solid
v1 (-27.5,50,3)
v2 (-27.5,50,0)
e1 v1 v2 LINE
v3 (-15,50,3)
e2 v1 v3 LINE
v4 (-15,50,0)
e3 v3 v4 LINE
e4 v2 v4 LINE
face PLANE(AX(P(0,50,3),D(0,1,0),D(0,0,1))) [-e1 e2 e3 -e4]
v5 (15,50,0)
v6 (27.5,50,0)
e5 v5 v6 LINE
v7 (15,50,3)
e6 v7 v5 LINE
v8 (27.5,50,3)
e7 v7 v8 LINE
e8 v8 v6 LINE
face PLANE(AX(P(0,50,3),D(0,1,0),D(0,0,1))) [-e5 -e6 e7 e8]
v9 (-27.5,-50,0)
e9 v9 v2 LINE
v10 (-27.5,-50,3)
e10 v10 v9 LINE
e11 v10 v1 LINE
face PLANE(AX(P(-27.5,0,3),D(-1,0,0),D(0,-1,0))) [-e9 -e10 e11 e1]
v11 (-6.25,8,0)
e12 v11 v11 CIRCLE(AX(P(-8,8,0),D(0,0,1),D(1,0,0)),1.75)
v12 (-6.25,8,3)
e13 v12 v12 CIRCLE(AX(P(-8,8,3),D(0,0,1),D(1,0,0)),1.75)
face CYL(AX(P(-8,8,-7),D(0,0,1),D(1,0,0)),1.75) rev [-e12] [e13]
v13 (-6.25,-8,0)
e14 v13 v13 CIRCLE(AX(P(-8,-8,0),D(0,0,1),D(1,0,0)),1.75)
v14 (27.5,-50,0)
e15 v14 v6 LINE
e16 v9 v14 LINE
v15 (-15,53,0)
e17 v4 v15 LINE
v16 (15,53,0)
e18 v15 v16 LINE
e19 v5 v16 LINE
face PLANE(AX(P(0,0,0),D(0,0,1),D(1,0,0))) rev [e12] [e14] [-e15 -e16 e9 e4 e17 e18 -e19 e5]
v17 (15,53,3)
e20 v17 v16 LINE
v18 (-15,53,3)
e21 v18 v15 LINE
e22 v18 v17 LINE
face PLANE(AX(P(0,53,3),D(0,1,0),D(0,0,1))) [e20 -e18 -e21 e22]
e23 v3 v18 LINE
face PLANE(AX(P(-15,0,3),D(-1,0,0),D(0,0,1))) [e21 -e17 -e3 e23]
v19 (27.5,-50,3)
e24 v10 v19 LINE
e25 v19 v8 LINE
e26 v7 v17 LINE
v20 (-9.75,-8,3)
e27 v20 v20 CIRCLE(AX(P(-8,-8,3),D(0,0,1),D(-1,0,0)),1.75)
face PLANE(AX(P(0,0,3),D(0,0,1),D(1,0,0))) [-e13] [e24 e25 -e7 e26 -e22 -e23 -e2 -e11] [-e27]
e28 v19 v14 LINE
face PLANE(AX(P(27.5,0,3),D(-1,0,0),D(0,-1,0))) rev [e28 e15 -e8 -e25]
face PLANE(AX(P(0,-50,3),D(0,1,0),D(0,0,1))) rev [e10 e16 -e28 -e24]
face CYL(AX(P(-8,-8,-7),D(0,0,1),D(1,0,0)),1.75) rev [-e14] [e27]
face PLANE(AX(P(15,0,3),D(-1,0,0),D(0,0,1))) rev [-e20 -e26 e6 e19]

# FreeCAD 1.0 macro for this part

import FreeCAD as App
import Part
import Sketcher
Q = App.Units.Quantity

doc = App.newDocument("Part")
body = doc.addObject("PartDesign::Body", "Body")

sketch1 = body.newObject("Sketcher::SketchObject", "Sketch")
sketch1.AttachmentSupport = (doc.getObject("XY_Plane"), [""])
sketch1.MapMode = "FlatFace"
sketch1.addGeometry(Part.LineSegment(App.Vector(-27.5, 50, 0), App.Vector(-27.5, -50, 0)), False)
sketch1.addGeometry(Part.LineSegment(App.Vector(-27.5, -50, 0), App.Vector(27.5, -50, 0)), False)
sketch1.addGeometry(Part.LineSegment(App.Vector(27.5, -50, 0), App.Vector(27.5, 50, 0)), False)
sketch1.addGeometry(Part.LineSegment(App.Vector(27.5, 50, 0), App.Vector(15, 50, 0)), False)
sketch1.addGeometry(Part.LineSegment(App.Vector(15, 50, 0), App.Vector(15, 53, 0)), False)
sketch1.addGeometry(Part.LineSegment(App.Vector(15, 53, 0), App.Vector(-15, 53, 0)), False)
sketch1.addGeometry(Part.LineSegment(App.Vector(-15, 53, 0), App.Vector(-15, 50, 0)), False)
sketch1.addGeometry(Part.LineSegment(App.Vector(-15, 50, 0), App.Vector(-27.5, 50, 0)), False)
sketch1.addConstraint(Sketcher.Constraint("Coincident", 0, 2, 1, 1))
sketch1.addConstraint(Sketcher.Constraint("Coincident", 1, 2, 2, 1))
sketch1.addConstraint(Sketcher.Constraint("Coincident", 2, 2, 3, 1))
sketch1.addConstraint(Sketcher.Constraint("Coincident", 3, 2, 4, 1))
sketch1.addConstraint(Sketcher.Constraint("Coincident", 4, 2, 5, 1))
sketch1.addConstraint(Sketcher.Constraint("Coincident", 5, 2, 6, 1))
sketch1.addConstraint(Sketcher.Constraint("Coincident", 6, 2, 7, 1))
sketch1.addConstraint(Sketcher.Constraint("Coincident", 7, 2, 0, 1))
sketch1.addConstraint(Sketcher.Constraint("Vertical", 0))
sketch1.addConstraint(Sketcher.Constraint("Horizontal", 1))
sketch1.addConstraint(Sketcher.Constraint("Vertical", 2))
sketch1.addConstraint(Sketcher.Constraint("Horizontal", 3))
sketch1.addConstraint(Sketcher.Constraint("Vertical", 4))
sketch1.addConstraint(Sketcher.Constraint("Horizontal", 5))
sketch1.addConstraint(Sketcher.Constraint("Vertical", 6))
sketch1.addConstraint(Sketcher.Constraint("Horizontal", 7))
sketch1.addConstraint(Sketcher.Constraint("Symmetric", 0, 2, 2, 2, -1, 1))
sketch1.addConstraint(Sketcher.Constraint("Symmetric", 3, 2, 6, 2, -2))
sketch1.addConstraint(Sketcher.Constraint("DistanceX", 1, 1, 1, 2, Q("55 mm")))
sketch1.addConstraint(Sketcher.Constraint("DistanceX", 5, 2, 5, 1, Q("30 mm")))
sketch1.addConstraint(Sketcher.Constraint("DistanceY", 0, 2, 0, 1, Q("100 mm")))
sketch1.addConstraint(Sketcher.Constraint("DistanceY", 4, 1, 4, 2, Q("3 mm")))
pad1 = body.newObject("PartDesign::Pad", "Pad")
pad1.Profile = sketch1
pad1.Length = 3

sketch2 = body.newObject("Sketcher::SketchObject", "Sketch001")
sketch2.AttachmentSupport = (doc.getObject("XY_Plane"), [""])
sketch2.MapMode = "FlatFace"
sketch2.AttachmentOffset = App.Placement(App.Vector(0, 0, 3), App.Rotation())
sketch2.addGeometry(Part.Circle(App.Vector(-8, 8, 0), App.Vector(0, 0, 1), 1.8), False)
sketch2.addGeometry(Part.Circle(App.Vector(-8, -8, 0), App.Vector(0, 0, 1), 1.8), False)
sketch2.addConstraint(Sketcher.Constraint("Equal", 0, 1))
sketch2.addConstraint(Sketcher.Constraint("Symmetric", 0, 3, 1, 3, -1))
sketch2.addConstraint(Sketcher.Constraint("Diameter", 0, Q("3.5 mm")))
sketch2.addConstraint(Sketcher.Constraint("DistanceX", 0, 3, -1, 1, Q("8 mm")))
sketch2.addConstraint(Sketcher.Constraint("DistanceY", -1, 1, 0, 3, Q("8 mm")))
pocket1 = body.newObject("PartDesign::Pocket", "Pocket")
pocket1.Profile = sketch2
pocket1.Length = 10

doc.recompute()
